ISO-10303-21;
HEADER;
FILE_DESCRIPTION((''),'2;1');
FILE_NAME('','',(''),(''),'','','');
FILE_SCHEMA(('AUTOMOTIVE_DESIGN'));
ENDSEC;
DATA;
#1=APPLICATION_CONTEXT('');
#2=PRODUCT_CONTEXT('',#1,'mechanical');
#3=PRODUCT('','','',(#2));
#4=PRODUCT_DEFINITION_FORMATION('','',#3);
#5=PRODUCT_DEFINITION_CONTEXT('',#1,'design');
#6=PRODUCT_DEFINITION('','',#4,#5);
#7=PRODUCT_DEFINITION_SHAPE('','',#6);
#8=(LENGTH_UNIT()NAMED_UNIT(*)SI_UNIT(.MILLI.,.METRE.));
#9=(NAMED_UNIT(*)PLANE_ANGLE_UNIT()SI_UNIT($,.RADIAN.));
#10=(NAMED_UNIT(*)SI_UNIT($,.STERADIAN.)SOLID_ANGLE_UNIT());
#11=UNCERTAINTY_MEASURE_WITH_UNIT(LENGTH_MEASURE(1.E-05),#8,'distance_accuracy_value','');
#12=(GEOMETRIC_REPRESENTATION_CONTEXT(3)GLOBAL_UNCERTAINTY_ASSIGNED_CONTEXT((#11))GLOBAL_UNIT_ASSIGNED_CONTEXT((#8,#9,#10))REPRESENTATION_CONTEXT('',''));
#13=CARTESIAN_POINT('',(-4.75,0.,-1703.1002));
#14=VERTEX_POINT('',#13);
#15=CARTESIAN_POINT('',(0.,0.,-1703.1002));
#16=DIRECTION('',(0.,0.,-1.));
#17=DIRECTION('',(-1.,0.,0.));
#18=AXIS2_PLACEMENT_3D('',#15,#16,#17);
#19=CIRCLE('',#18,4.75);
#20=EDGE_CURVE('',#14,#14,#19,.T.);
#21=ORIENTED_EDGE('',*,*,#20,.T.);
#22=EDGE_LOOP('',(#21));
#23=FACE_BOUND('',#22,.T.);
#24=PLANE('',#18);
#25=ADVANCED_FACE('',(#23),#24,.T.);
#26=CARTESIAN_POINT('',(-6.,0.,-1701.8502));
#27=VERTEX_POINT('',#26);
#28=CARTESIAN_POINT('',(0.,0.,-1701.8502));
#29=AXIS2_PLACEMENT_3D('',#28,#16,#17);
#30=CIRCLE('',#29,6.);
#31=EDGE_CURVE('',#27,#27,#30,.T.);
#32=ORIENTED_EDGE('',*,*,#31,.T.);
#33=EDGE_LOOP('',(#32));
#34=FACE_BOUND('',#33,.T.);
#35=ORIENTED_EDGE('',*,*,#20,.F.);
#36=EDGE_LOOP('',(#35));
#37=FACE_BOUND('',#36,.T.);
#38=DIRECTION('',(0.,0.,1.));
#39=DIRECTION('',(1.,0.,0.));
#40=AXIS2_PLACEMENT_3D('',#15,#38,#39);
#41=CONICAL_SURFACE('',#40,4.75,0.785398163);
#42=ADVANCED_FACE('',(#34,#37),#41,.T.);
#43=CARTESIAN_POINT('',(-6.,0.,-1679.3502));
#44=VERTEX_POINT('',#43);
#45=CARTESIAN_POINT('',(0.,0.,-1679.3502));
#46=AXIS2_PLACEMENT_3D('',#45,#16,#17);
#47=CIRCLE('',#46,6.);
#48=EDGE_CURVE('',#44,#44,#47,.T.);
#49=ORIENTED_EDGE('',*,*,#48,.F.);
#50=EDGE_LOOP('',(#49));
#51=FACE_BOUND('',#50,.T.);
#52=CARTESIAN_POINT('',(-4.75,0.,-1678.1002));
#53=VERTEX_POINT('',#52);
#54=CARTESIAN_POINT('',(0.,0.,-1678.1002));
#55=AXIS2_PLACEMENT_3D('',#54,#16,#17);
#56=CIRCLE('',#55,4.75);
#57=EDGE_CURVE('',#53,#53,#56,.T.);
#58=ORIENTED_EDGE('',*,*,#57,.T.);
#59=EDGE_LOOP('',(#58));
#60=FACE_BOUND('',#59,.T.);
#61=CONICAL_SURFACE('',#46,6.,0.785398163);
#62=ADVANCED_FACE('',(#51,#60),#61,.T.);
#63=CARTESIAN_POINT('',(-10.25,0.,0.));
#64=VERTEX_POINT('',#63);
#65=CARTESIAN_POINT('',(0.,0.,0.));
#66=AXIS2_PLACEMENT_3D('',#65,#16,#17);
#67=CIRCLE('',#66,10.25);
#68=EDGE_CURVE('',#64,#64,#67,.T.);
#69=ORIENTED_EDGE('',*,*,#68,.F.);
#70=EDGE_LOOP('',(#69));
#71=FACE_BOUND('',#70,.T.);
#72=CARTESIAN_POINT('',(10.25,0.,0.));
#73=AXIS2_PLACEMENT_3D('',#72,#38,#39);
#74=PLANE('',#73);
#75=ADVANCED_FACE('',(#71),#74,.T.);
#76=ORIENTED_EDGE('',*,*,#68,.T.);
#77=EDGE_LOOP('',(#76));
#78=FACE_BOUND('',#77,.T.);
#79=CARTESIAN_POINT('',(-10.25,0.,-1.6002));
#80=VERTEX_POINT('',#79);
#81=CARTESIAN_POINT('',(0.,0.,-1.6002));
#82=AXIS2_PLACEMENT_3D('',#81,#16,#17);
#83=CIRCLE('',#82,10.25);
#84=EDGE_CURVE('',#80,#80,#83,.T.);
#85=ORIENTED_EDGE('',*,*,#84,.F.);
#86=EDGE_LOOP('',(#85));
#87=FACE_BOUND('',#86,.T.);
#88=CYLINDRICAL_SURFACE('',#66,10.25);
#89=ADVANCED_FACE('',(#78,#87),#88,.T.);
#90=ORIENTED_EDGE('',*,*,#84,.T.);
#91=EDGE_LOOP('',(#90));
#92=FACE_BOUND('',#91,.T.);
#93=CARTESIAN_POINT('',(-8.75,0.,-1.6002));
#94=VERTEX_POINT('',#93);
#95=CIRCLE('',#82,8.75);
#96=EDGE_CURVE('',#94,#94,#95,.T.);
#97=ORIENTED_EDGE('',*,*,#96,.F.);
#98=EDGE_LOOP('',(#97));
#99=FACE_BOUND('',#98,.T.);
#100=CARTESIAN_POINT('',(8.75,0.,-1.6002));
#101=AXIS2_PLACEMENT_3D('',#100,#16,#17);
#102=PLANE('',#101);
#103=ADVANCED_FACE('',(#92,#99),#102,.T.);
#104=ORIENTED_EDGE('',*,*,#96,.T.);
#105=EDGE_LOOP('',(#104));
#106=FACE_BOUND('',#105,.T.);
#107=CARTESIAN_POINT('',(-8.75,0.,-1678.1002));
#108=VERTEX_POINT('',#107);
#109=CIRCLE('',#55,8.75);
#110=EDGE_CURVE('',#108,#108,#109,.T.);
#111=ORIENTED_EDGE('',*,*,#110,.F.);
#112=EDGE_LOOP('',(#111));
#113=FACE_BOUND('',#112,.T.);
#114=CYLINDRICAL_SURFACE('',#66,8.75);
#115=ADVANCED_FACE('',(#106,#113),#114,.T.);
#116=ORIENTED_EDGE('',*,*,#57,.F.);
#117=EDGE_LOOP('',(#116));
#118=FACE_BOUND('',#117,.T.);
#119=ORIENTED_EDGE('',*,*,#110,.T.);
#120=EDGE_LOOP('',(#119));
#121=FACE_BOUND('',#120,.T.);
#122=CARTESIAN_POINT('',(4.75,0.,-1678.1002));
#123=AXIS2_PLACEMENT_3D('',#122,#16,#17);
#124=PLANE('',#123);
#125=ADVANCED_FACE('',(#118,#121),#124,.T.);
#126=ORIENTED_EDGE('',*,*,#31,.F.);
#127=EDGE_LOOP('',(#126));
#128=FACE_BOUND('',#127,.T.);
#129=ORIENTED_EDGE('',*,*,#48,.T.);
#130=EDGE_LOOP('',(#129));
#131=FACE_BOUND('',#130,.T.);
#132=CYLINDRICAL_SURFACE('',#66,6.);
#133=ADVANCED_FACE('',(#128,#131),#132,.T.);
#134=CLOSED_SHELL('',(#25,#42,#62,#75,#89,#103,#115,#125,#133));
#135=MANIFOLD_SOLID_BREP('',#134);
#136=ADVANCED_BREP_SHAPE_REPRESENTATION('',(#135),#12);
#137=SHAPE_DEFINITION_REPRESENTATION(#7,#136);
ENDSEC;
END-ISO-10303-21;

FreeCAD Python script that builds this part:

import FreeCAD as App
import Part
import Sketcher
Q = App.Units.Quantity

doc = App.newDocument("Part")
body = doc.addObject("PartDesign::Body", "Body")

sketch1 = body.newObject("Sketcher::SketchObject", "Sketch")
sketch1.AttachmentSupport = (doc.getObject("XZ_Plane"), [""])
sketch1.MapMode = "FlatFace"
sketch1.addGeometry([
    Part.LineSegment(App.Vector(10.2, 0, 0), App.Vector(0, 0, 0)),
    Part.LineSegment(App.Vector(0, 0, 0), App.Vector(0, -1703.1, 0)),
    Part.LineSegment(App.Vector(0, -1703.1, 0), App.Vector(4.8, -1703.1, 0)),
    Part.LineSegment(App.Vector(4.8, -1703.1, 0), App.Vector(6, -1701.9, 0)),
    Part.LineSegment(App.Vector(6, -1701.9, 0), App.Vector(6, -1679.4, 0)),
    Part.LineSegment(App.Vector(6, -1679.4, 0), App.Vector(4.8, -1678.1, 0)),
    Part.LineSegment(App.Vector(4.8, -1678.1, 0), App.Vector(8.8, -1678.1, 0)),
    Part.LineSegment(App.Vector(8.8, -1678.1, 0), App.Vector(8.8, -1.6, 0)),
    Part.LineSegment(App.Vector(8.8, -1.6, 0), App.Vector(10.2, -1.6, 0)),
    Part.LineSegment(App.Vector(10.2, -1.6, 0), App.Vector(10.2, 0, 0)),
], False)
sketch1.addConstraint([
    Sketcher.Constraint("Coincident", 0, 2, 1, 1),
    Sketcher.Constraint("Coincident", 1, 2, 2, 1),
    Sketcher.Constraint("Coincident", 2, 2, 3, 1),
    Sketcher.Constraint("Coincident", 3, 2, 4, 1),
    Sketcher.Constraint("Coincident", 4, 2, 5, 1),
    Sketcher.Constraint("Coincident", 5, 2, 6, 1),
    Sketcher.Constraint("Coincident", 6, 2, 7, 1),
    Sketcher.Constraint("Coincident", 7, 2, 8, 1),
    Sketcher.Constraint("Coincident", 8, 2, 9, 1),
    Sketcher.Constraint("Coincident", 9, 2, 0, 1),
    Sketcher.Constraint("Horizontal", 0),
    Sketcher.Constraint("Vertical", 1),
    Sketcher.Constraint("Horizontal", 2),
    Sketcher.Constraint("Vertical", 4),
    Sketcher.Constraint("Horizontal", 6),
    Sketcher.Constraint("Vertical", 7),
    Sketcher.Constraint("Horizontal", 8),
    Sketcher.Constraint("Vertical", 9),
    Sketcher.Constraint("Coincident", 0, 2, -1, 1),
    Sketcher.Constraint("Perpendicular", 3, 5),
    Sketcher.Constraint("Vertical", 2, 2, 5, 2),
    Sketcher.Constraint("Equal", 3, 5),
    Sketcher.Constraint("DistanceX", 6, 1, 6, 2, Q("4 mm")),
    Sketcher.Constraint("DistanceX", 8, 1, 8, 2, Q("1.5 mm")),
    Sketcher.Constraint("DistanceY", 4, 1, 4, 2, Q("22.5 mm")),
    Sketcher.Constraint("DistanceY", 7, 1, 7, 2, Q("1676.5 mm")),
    Sketcher.Constraint("DistanceX", -1, 1, 3, 2, Q("6 mm")),
    Sketcher.Constraint("DistanceY", 2, 2, 5, 2, Q("25 mm")),
    Sketcher.Constraint("DistanceY", 1, 2, 1, 1, Q("1703.1002 mm")),
])
revolution = body.newObject("PartDesign::Revolution", "Revolution")
revolution.Profile = sketch1
revolution.ReferenceAxis = (sketch1, ["V_Axis"])
revolution.Angle = 360

doc.recompute()
